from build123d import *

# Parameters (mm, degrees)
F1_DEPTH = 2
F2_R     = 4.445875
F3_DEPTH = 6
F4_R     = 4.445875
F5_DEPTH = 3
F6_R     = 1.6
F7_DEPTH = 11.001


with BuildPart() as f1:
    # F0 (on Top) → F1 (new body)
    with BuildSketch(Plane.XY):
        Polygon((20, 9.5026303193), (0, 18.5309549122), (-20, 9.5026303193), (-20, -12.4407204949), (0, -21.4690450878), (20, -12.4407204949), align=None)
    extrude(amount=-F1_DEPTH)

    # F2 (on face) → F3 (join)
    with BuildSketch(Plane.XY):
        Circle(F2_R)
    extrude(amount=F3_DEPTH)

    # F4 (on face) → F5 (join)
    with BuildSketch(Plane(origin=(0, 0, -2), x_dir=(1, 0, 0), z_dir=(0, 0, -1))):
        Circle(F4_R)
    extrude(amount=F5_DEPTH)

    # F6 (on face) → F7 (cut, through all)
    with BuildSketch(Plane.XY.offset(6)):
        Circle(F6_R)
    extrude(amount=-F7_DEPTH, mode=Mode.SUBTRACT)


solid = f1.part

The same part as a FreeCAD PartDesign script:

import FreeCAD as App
import Part
import Sketcher
from FreeCAD import Vector

doc = App.newDocument("Part")
body = doc.addObject("PartDesign::Body", "Body")

sketch1 = body.newObject("Sketcher::SketchObject", "Sketch")
sketch1.AttachmentSupport = (doc.getObject("XY_Plane"), [""])
sketch1.MapMode = "FlatFace"
sketch1.addGeometry([
    Part.LineSegment(Vector(20, 9.50263, 0), Vector(0, 18.530955, 0)),
    Part.LineSegment(Vector(0, 18.530955, 0), Vector(-20, 9.50263, 0)),
    Part.LineSegment(Vector(-20, 9.50263, 0), Vector(-20, -12.44072, 0)),
    Part.LineSegment(Vector(-20, -12.44072, 0), Vector(0, -21.469045, 0)),
    Part.LineSegment(Vector(0, -21.469045, 0), Vector(20, -12.44072, 0)),
    Part.LineSegment(Vector(20, -12.44072, 0), Vector(20, 9.50263, 0)),
], False)
sketch1.addConstraint([
    Sketcher.Constraint("Coincident", 0, 2, 1, 1),
    Sketcher.Constraint("Coincident", 1, 2, 2, 1),
    Sketcher.Constraint("Coincident", 2, 2, 3, 1),
    Sketcher.Constraint("Coincident", 3, 2, 4, 1),
    Sketcher.Constraint("Coincident", 4, 2, 5, 1),
    Sketcher.Constraint("Coincident", 5, 2, 0, 1),
    Sketcher.Constraint("Vertical", 2),
    Sketcher.Constraint("Vertical", 5),
    Sketcher.Constraint("Symmetric", 2, 2, 4, 2, -2),
    Sketcher.Constraint("PointOnObject", 0, 2, -2),
    Sketcher.Constraint("PointOnObject", 3, 2, -2),
    Sketcher.Constraint("Parallel", 0, 3),
    Sketcher.Constraint("Parallel", 1, 4),
    Sketcher.Constraint("DistanceX", 1, 2, -1, 1, 20.0),
    Sketcher.Constraint("DistanceY", 3, 2, 0, 2, 40.0),
    Sketcher.Constraint("DistanceY", 2, 2, 2, 1, 21.943351),
    Sketcher.Constraint("DistanceY", -1, 1, 1, 2, 9.50263),
])
pad1 = body.newObject("PartDesign::Pad", "Pad")
pad1.Profile = sketch1
pad1.Length = 2
pad1.Reversed = True

sketch2 = body.newObject("Sketcher::SketchObject", "Sketch001")
sketch2.AttachmentSupport = (doc.getObject("XY_Plane"), [""])
sketch2.MapMode = "FlatFace"
sketch2.addGeometry(Part.Circle(Vector(0, 0, 0), Vector(0, 0, 1), 4.445875), False)
sketch2.addConstraint([
    Sketcher.Constraint("Coincident", 0, 3, -1, 1),
    Sketcher.Constraint("Diameter", 0, 8.89175),
])
pad2 = body.newObject("PartDesign::Pad", "Pad001")
pad2.Profile = sketch2
pad2.Length = 6

sketch3 = body.newObject("Sketcher::SketchObject", "Sketch002")
sketch3.AttachmentSupport = (doc.getObject("XY_Plane"), [""])
sketch3.MapMode = "FlatFace"
sketch3.AttachmentOffset = App.Placement(Vector(0, 0, -2), App.Rotation())
sketch3.addGeometry(Part.Circle(Vector(0, 0, 0), Vector(0, 0, 1), 4.445875), False)
sketch3.addConstraint([
    Sketcher.Constraint("Coincident", 0, 3, -1, 1),
    Sketcher.Constraint("Diameter", 0, 8.89175),
])
pad3 = body.newObject("PartDesign::Pad", "Pad002")
pad3.Profile = sketch3
pad3.Length = 3
pad3.Reversed = True

sketch4 = body.newObject("Sketcher::SketchObject", "Sketch003")
sketch4.AttachmentSupport = (doc.getObject("XY_Plane"), [""])
sketch4.MapMode = "FlatFace"
sketch4.AttachmentOffset = App.Placement(Vector(0, 0, 6), App.Rotation())
sketch4.addGeometry(Part.Circle(Vector(0, 0, 0), Vector(0, 0, 1), 1.6), False)
sketch4.addConstraint([
    Sketcher.Constraint("Coincident", 0, 3, -1, 1),
    Sketcher.Constraint("Diameter", 0, 3.2),
])
pocket1 = body.newObject("PartDesign::Pocket", "Pocket")
pocket1.Profile = sketch4
pocket1.Type = "ThroughAll"

doc.recompute()
